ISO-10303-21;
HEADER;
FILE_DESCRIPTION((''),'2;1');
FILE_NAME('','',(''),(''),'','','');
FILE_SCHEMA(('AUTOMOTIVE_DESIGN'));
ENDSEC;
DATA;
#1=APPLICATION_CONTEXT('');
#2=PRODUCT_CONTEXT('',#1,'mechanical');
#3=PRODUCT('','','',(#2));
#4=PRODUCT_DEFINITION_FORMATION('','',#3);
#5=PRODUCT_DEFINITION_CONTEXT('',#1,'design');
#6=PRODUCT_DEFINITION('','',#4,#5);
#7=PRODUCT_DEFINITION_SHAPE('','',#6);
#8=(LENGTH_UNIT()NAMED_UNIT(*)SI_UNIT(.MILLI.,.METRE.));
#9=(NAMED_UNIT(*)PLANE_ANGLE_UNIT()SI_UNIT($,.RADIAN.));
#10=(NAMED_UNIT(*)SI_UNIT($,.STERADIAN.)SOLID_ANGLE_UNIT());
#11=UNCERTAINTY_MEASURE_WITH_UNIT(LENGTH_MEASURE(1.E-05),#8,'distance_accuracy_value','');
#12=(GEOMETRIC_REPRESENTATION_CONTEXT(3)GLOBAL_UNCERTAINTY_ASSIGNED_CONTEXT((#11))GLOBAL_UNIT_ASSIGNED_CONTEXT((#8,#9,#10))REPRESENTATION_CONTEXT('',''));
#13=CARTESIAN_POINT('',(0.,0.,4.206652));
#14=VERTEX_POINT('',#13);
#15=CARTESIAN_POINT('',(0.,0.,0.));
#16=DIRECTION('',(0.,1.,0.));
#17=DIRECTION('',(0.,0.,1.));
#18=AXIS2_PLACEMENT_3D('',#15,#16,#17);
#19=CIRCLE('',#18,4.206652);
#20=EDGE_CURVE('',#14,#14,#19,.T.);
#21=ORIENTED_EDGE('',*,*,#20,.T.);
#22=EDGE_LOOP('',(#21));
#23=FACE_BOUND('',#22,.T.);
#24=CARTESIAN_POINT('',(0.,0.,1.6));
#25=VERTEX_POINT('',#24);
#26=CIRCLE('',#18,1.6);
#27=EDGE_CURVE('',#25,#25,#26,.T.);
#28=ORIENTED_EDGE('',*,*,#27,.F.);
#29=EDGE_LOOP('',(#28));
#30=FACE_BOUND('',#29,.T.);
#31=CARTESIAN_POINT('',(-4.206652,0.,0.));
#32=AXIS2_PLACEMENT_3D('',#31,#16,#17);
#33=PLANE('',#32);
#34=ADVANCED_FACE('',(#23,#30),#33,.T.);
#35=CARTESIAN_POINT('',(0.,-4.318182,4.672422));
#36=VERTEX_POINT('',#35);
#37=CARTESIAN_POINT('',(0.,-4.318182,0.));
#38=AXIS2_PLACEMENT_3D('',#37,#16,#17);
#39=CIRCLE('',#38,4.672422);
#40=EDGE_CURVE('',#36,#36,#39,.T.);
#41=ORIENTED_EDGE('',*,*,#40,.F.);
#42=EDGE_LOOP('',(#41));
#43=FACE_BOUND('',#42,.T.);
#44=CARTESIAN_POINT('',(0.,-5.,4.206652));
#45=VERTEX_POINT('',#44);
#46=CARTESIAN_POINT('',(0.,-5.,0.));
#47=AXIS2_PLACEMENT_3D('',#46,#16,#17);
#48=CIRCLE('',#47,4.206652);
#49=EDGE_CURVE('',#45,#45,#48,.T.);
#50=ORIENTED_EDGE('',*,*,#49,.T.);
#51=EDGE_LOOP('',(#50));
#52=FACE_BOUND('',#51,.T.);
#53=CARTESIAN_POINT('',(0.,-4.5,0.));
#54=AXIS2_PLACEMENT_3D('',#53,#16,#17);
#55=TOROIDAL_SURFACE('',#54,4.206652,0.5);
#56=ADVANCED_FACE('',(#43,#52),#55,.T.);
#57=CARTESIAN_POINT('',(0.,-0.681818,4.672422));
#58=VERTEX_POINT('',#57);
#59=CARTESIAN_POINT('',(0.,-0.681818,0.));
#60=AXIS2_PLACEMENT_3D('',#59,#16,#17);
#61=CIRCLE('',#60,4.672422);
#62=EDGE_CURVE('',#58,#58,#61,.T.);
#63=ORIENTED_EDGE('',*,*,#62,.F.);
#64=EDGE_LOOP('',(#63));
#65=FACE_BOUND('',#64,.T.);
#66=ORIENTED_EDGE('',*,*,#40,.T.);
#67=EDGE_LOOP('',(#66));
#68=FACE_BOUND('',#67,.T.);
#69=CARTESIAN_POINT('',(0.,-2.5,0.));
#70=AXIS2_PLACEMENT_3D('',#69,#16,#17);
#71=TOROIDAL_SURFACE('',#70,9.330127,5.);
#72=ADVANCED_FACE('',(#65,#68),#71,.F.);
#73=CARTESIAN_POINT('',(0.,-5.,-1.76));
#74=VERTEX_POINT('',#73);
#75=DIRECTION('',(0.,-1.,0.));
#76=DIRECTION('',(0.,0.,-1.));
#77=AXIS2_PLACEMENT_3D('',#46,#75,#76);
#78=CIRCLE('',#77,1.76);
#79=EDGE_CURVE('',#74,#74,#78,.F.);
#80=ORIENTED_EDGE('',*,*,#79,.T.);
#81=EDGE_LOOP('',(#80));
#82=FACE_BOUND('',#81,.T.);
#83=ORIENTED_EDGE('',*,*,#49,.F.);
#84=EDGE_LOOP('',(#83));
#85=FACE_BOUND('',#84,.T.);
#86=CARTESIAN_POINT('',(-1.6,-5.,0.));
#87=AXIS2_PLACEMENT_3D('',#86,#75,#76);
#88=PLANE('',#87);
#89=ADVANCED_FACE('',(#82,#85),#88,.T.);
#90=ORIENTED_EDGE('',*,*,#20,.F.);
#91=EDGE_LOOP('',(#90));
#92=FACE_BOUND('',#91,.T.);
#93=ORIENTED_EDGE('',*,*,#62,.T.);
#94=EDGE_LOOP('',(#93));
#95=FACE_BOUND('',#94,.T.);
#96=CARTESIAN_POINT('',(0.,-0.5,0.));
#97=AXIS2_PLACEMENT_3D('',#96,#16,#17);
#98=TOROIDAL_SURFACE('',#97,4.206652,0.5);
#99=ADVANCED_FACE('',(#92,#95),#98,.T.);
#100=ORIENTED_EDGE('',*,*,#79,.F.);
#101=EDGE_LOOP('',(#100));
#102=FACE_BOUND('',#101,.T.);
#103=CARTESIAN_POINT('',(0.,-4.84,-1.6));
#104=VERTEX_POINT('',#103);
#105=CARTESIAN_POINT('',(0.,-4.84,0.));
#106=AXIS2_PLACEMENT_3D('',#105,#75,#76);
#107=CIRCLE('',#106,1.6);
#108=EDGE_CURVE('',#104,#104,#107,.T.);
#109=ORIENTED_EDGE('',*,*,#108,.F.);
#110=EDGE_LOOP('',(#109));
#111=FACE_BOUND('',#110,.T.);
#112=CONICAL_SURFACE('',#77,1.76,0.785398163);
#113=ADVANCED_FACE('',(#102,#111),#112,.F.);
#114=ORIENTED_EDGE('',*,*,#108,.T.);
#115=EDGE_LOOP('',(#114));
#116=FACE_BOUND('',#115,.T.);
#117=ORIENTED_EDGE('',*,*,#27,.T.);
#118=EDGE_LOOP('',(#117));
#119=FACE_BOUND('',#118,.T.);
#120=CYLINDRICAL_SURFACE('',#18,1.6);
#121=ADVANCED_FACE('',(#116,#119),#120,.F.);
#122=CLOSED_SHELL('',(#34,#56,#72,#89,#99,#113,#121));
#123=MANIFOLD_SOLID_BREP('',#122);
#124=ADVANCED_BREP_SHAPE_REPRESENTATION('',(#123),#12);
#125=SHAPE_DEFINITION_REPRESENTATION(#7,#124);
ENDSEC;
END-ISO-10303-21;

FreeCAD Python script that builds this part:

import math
import FreeCAD as App
import Part
import Sketcher

V = App.Vector
Q = App.Units.Quantity


def edges_at(feature, points):
    """Names of the edges that pass closest to the given points."""
    edges = feature.Shape.Edges
    near = lambda p: min(range(len(edges)), key=lambda i: edges[i].distToShape(Part.Vertex(*p))[0])
    return sorted({f"Edge{near(p) + 1}" for p in points})

doc = App.newDocument("Part")
body = doc.addObject("PartDesign::Body", "Body")

sketch1 = doc.addObject("Sketcher::SketchObject", "Sketch")
body.addObject(sketch1)
sketch1.AttachmentSupport = (doc.XY_Plane, [""])
sketch1.MapMode = "FlatFace"
sketch1.addGeometry([
    Part.LineSegment(V(-1.6, 0, 0), V(-4.206652, 0, 0)),
    Part.ArcOfCircle(Part.Circle(V(-4.206652, -0.5, 0), V(0, 0, 1), 0.5), math.radians(90), math.radians(201.323686)),
    Part.ArcOfCircle(Part.Circle(V(-9.330127, -2.5, 0), V(0, 0, 1), 5), math.radians(-21.323686), math.radians(21.323686)),
    Part.ArcOfCircle(Part.Circle(V(-4.206652, -4.5, 0), V(0, 0, 1), 0.5), math.radians(158.676314), math.radians(270)),
    Part.LineSegment(V(-4.206652, -5, 0), V(-1.6, -5, 0)),
    Part.LineSegment(V(-1.6, -5, 0), V(-1.6, 0, 0)),
], False)
sketch1.addConstraint([
    Sketcher.Constraint("Tangent", 0, 2, 1, 1),
    Sketcher.Constraint("Tangent", 1, 2, 2, 2),
    Sketcher.Constraint("Tangent", 2, 1, 3, 1),
    Sketcher.Constraint("Tangent", 3, 2, 4, 1),
    Sketcher.Constraint("Coincident", 4, 2, 5, 1),
    Sketcher.Constraint("Coincident", 5, 2, 0, 1),
    Sketcher.Constraint("Horizontal", 0),
    Sketcher.Constraint("Horizontal", 4),
    Sketcher.Constraint("Vertical", 5),
    Sketcher.Constraint("Equal", 1, 3),
    Sketcher.Constraint("PointOnObject", 0, 2, -1),
    Sketcher.Constraint("Vertical", 1, 3, 3, 3),
    Sketcher.Constraint("Radius", 2, Q("5 mm")),
    Sketcher.Constraint("Radius", 1, Q("0.5 mm")),
    Sketcher.Constraint("DistanceY", 5, 1, 5, 2, Q("5 mm")),
    Sketcher.Constraint("DistanceX", 4, 2, -1, 1, Q("1.6 mm")),
    Sketcher.Constraint("DistanceX", 0, 2, 0, 1, Q("2.606652 mm")),
])
revolution = doc.addObject("PartDesign::Revolution", "Revolution")
body.addObject(revolution)
revolution.Profile = sketch1
revolution.ReferenceAxis = (sketch1, ["V_Axis"])
revolution.Angle = 360
doc.recompute()

chamfer = doc.addObject("PartDesign::Chamfer", "Chamfer")
body.addObject(chamfer)
chamfer.Base = (revolution, edges_at(revolution, [(0, -5, -1.6)]))
chamfer.Size = 0.16

doc.recompute()
